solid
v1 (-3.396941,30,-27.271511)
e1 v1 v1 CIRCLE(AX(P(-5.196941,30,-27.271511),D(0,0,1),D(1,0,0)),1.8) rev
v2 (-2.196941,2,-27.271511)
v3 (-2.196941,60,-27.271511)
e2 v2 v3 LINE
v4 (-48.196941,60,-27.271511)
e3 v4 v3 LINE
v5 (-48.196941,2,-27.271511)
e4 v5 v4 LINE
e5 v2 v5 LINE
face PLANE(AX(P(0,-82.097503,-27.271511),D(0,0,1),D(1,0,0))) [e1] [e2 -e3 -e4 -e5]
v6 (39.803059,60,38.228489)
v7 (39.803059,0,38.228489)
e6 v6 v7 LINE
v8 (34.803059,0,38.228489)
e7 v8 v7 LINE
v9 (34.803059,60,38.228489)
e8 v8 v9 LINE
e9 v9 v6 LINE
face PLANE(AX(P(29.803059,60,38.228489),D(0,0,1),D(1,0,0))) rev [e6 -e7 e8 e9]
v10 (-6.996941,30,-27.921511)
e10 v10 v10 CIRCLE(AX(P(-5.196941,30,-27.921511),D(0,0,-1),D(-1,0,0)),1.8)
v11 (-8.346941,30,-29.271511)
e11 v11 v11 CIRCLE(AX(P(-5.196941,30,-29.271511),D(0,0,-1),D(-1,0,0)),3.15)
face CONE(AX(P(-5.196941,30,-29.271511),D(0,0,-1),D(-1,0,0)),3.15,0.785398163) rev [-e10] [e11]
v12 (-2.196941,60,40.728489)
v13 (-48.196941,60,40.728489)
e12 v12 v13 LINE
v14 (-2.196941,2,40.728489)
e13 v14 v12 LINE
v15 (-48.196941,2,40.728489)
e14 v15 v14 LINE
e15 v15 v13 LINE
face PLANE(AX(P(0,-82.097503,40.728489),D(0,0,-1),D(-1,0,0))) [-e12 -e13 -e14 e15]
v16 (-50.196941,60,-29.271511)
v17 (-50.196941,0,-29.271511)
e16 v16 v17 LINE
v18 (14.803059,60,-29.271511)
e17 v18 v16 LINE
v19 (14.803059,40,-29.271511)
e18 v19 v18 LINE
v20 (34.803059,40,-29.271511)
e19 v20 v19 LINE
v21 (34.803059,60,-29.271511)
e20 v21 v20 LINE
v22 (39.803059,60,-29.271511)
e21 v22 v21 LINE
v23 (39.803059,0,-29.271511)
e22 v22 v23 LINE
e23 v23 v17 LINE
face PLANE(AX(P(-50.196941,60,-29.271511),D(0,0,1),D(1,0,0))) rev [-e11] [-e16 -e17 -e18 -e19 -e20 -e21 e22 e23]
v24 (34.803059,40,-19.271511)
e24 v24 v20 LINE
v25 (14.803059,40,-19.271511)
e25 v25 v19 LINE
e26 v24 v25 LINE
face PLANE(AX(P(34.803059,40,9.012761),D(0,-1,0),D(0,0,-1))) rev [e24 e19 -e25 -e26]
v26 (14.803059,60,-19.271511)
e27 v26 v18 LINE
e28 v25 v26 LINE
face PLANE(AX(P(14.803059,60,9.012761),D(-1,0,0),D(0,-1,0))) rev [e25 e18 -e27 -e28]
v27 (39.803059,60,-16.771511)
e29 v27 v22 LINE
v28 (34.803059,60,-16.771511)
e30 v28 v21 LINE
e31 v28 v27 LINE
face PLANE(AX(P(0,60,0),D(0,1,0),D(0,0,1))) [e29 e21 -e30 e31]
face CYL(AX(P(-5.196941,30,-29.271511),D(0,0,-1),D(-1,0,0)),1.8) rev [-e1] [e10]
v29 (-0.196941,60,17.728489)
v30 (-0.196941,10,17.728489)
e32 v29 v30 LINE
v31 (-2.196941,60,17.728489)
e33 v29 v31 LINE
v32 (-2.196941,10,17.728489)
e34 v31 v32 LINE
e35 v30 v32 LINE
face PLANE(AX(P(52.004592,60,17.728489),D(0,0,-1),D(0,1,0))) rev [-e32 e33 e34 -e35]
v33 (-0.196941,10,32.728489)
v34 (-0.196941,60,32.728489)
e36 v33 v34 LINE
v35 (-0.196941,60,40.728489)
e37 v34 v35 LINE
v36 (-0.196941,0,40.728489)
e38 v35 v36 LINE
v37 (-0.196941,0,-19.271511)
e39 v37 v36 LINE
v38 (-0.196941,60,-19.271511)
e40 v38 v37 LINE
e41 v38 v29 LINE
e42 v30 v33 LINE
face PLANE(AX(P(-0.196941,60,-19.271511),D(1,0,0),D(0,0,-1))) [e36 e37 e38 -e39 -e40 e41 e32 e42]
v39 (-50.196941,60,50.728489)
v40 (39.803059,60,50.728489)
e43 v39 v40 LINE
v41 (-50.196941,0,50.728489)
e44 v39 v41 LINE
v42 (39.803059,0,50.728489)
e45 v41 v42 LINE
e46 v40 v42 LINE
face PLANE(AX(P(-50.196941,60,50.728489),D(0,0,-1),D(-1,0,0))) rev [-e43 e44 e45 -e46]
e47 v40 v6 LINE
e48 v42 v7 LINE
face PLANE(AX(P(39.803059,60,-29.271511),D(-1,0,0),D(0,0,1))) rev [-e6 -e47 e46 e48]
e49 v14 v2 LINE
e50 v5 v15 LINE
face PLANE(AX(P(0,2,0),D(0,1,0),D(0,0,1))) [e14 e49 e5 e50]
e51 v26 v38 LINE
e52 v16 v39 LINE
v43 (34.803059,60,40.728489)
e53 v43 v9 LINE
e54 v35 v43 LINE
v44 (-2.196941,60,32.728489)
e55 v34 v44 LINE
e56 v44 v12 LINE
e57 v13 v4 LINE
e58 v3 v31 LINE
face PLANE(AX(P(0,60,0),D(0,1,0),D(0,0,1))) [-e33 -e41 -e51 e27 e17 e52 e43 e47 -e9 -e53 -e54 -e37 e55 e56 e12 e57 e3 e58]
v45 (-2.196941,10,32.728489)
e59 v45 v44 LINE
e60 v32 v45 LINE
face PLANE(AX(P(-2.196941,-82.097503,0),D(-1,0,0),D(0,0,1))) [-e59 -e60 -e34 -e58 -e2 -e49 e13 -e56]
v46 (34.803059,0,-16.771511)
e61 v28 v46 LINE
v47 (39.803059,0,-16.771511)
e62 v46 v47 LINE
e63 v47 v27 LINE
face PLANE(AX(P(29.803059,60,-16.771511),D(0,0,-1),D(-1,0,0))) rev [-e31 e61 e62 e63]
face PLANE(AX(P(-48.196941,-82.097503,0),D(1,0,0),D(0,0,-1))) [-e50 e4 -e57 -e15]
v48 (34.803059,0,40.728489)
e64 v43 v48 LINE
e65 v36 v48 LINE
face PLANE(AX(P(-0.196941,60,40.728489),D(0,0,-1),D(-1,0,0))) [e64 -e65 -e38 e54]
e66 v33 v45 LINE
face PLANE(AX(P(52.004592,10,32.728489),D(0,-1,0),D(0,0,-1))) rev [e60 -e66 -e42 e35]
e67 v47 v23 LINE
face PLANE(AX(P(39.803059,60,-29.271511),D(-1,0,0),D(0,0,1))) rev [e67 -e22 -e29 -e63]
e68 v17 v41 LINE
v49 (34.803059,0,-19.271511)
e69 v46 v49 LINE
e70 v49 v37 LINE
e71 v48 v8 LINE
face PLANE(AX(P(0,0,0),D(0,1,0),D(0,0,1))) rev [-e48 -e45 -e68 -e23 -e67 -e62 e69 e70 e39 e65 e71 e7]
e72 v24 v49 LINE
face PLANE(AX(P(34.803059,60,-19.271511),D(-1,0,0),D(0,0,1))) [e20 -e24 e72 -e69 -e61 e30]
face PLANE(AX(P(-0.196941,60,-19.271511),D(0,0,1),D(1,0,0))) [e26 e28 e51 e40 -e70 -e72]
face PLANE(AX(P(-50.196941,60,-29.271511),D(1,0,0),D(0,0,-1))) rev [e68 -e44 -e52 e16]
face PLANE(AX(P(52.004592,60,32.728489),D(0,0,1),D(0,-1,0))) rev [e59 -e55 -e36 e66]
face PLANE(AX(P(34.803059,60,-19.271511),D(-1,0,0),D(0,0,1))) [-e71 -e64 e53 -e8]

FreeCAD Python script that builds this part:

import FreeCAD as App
import Part
import Sketcher
from FreeCAD import Vector
Q = App.Units.Quantity


def add_polygon(sketch, points):
    """Adds a closed chain of lines whose ends are joined by coincident constraints."""
    first, n = sketch.GeometryCount, len(points)
    for a, b in zip(points, points[1:] + points[:1]):
        sketch.addGeometry(Part.LineSegment(App.Vector(*a, 0), App.Vector(*b, 0)), False)
    for i in range(n):
        sketch.addConstraint(Sketcher.Constraint("Coincident", first + i, 2, first + (i + 1) % n, 1))

doc = App.newDocument("Part")
body = doc.addObject("PartDesign::Body", "Body")

# Sketch on XZ plane
sketch1 = body.newObject("Sketcher::SketchObject", "Sketch")
sketch1.AttachmentSupport = (doc.getObject("XZ_Plane"), [""])
sketch1.MapMode = "FlatFace"
add_polygon(sketch1, [(-50, -29), (-50, 51), (40, 51), (40, -29)])  # lines 0-3
add_polygon(sketch1, [(35, 41), (0, 41), (0, -19), (35, -19)])  # lines 4-7
sketch1.addConstraint(Sketcher.Constraint("Vertical", 0))
sketch1.addConstraint(Sketcher.Constraint("Horizontal", 1))
sketch1.addConstraint(Sketcher.Constraint("Vertical", 2))
sketch1.addConstraint(Sketcher.Constraint("Horizontal", 3))
sketch1.addConstraint(Sketcher.Constraint("Horizontal", 4))
sketch1.addConstraint(Sketcher.Constraint("Vertical", 5))
sketch1.addConstraint(Sketcher.Constraint("Horizontal", 6))
sketch1.addConstraint(Sketcher.Constraint("Vertical", 7))
sketch1.addConstraint(Sketcher.Constraint("DistanceX", 1, 1, 1, 2, Q("90 mm")))
sketch1.addConstraint(Sketcher.Constraint("DistanceX", 4, 2, 4, 1, Q("35 mm")))
sketch1.addConstraint(Sketcher.Constraint("DistanceY", 0, 1, 0, 2, Q("80 mm")))
sketch1.addConstraint(Sketcher.Constraint("DistanceY", 5, 2, 5, 1, Q("60 mm")))
sketch1.addConstraint(Sketcher.Constraint("DistanceX", 4, 2, 1, 2, Q("40 mm")))
sketch1.addConstraint(Sketcher.Constraint("DistanceY", 4, 2, 1, 2, Q("10 mm")))
sketch1.addConstraint(Sketcher.Constraint("DistanceX", 0, 2, -1, 1, Q("50.196941 mm")))
sketch1.addConstraint(Sketcher.Constraint("DistanceY", -1, 1, 0, 2, Q("50.728489 mm")))
pad1 = body.newObject("PartDesign::Pad", "Pad")
pad1.Profile = sketch1
pad1.Length = 60
pad1.Reversed = True

# Sketch on XZ plane
sketch2 = body.newObject("Sketcher::SketchObject", "Sketch001")
sketch2.AttachmentSupport = (doc.getObject("XZ_Plane"), [""])
sketch2.MapMode = "FlatFace"
sketch2.AttachmentOffset = App.Placement(Vector(0, 0, -60), App.Rotation())
add_polygon(sketch2, [(-48, -27), (-48, 41), (-2, 41), (-2, -27)])  # lines 0-3
sketch2.addConstraint(Sketcher.Constraint("Vertical", 0))
sketch2.addConstraint(Sketcher.Constraint("Horizontal", 1))
sketch2.addConstraint(Sketcher.Constraint("Vertical", 2))
sketch2.addConstraint(Sketcher.Constraint("Horizontal", 3))
sketch2.addConstraint(Sketcher.Constraint("DistanceX", 1, 1, 1, 2, Q("46 mm")))
sketch2.addConstraint(Sketcher.Constraint("DistanceY", 0, 1, 0, 2, Q("68 mm")))
sketch2.addConstraint(Sketcher.Constraint("DistanceX", 0, 2, -1, 1, Q("48.196941 mm")))
sketch2.addConstraint(Sketcher.Constraint("DistanceY", -1, 1, 0, 2, Q("40.728489 mm")))
pocket1 = body.newObject("PartDesign::Pocket", "Pocket")
pocket1.Profile = sketch2
pocket1.Length = 58
pocket1.Reversed = True

# Sketch on YZ plane
sketch3 = body.newObject("Sketcher::SketchObject", "Sketch002")
sketch3.AttachmentSupport = (doc.getObject("YZ_Plane"), [""])
sketch3.MapMode = "FlatFace"
sketch3.AttachmentOffset = App.Placement(Vector(0, 0, -2.196941), App.Rotation())
add_polygon(sketch3, [(60, 18), (10, 18), (10, 33), (60, 33)])  # lines 0-3
sketch3.addConstraint(Sketcher.Constraint("Horizontal", 0))
sketch3.addConstraint(Sketcher.Constraint("Vertical", 1))
sketch3.addConstraint(Sketcher.Constraint("Horizontal", 2))
sketch3.addConstraint(Sketcher.Constraint("Vertical", 3))
sketch3.addConstraint(Sketcher.Constraint("DistanceX", 0, 2, 0, 1, Q("50 mm")))
sketch3.addConstraint(Sketcher.Constraint("DistanceY", 1, 1, 1, 2, Q("15 mm")))
sketch3.addConstraint(Sketcher.Constraint("DistanceX", -1, 1, 0, 2, Q("10 mm")))
sketch3.addConstraint(Sketcher.Constraint("DistanceY", -1, 1, 0, 2, Q("17.728489 mm")))
pocket2 = body.newObject("PartDesign::Pocket", "Pocket001")
pocket2.Profile = sketch3
pocket2.Length = 2
pocket2.Reversed = True

# Sketch on XY plane
sketch4 = body.newObject("Sketcher::SketchObject", "Sketch003")
sketch4.AttachmentSupport = (doc.getObject("XY_Plane"), [""])
sketch4.MapMode = "FlatFace"
sketch4.AttachmentOffset = App.Placement(Vector(0, 0, -29.271511), App.Rotation())
add_polygon(sketch4, [(35, 60), (35, 40), (15, 40), (15, 60)])  # lines 0-3
sketch4.addConstraint(Sketcher.Constraint("Vertical", 0))
sketch4.addConstraint(Sketcher.Constraint("Horizontal", 1))
sketch4.addConstraint(Sketcher.Constraint("Vertical", 2))
sketch4.addConstraint(Sketcher.Constraint("Horizontal", 3))
sketch4.addConstraint(Sketcher.Constraint("Equal", 3, 0))
sketch4.addConstraint(Sketcher.Constraint("DistanceX", 1, 2, 1, 1, Q("20 mm")))
sketch4.addConstraint(Sketcher.Constraint("DistanceY", -1, 1, 0, 2, Q("40 mm")))
sketch4.addConstraint(Sketcher.Constraint("DistanceX", -1, 1, 0, 2, Q("34.803059 mm")))
pocket3 = body.newObject("PartDesign::Pocket", "Pocket002")
pocket3.Profile = sketch4
pocket3.Length = 10
pocket3.Reversed = True

# Sketch on YZ plane
sketch5 = body.newObject("Sketcher::SketchObject", "Sketch004")
sketch5.AttachmentSupport = (doc.getObject("YZ_Plane"), [""])
sketch5.MapMode = "FlatFace"
sketch5.AttachmentOffset = App.Placement(Vector(0, 0, 39.803059), App.Rotation())
add_polygon(sketch5, [(60, 38), (0, 38), (0, -17), (60, -17)])  # lines 0-3
sketch5.addConstraint(Sketcher.Constraint("Horizontal", 0))
sketch5.addConstraint(Sketcher.Constraint("Vertical", 1))
sketch5.addConstraint(Sketcher.Constraint("Horizontal", 2))
sketch5.addConstraint(Sketcher.Constraint("Vertical", 3))
sketch5.addConstraint(Sketcher.Constraint("PointOnObject", 0, 2, -2))
sketch5.addConstraint(Sketcher.Constraint("DistanceX", 0, 2, 0, 1, Q("60 mm")))
sketch5.addConstraint(Sketcher.Constraint("DistanceY", 1, 2, 1, 1, Q("55 mm")))
sketch5.addConstraint(Sketcher.Constraint("DistanceY", -1, 1, 0, 2, Q("38.228489 mm")))
pocket4 = body.newObject("PartDesign::Pocket", "Pocket003")
pocket4.Profile = sketch5
pocket4.Length = 10

# Sketch on YZ plane
sketch6 = body.newObject("Sketcher::SketchObject", "Sketch005")
sketch6.AttachmentSupport = (doc.getObject("YZ_Plane"), [""])
sketch6.MapMode = "FlatFace"
sketch6.AttachmentOffset = App.Placement(Vector(0, 0, -5.196941), App.Rotation())
add_polygon(sketch6, [(30, -26.2), (30, -29.3), (33.1, -29.3), (31.8, -27.9), (31.8, -27.3)])  # lines 0-4
sketch6.addGeometry(Part.LineSegment(Vector(30, -29.3, 0), Vector(30, -26.2, 0)), True)  # axis
sketch6.addConstraint(Sketcher.Constraint("Vertical", 0))
sketch6.addConstraint(Sketcher.Constraint("Horizontal", 1))
sketch6.addConstraint(Sketcher.Constraint("Vertical", 3))
sketch6.addConstraint(Sketcher.Constraint("Vertical", 5))
sketch6.addConstraint(Sketcher.Constraint("Coincident", 5, 1, 0, 2))
sketch6.addConstraint(Sketcher.Constraint("Equal", 0, 5))
sketch6.addConstraint(Sketcher.Constraint("Angle", 2, Q("135 deg")))
sketch6.addConstraint(Sketcher.Constraint("Angle", 4, Q("149 deg")))
sketch6.addConstraint(Sketcher.Constraint("DistanceX", -1, 1, 0, 2, Q("30 mm")))
sketch6.addConstraint(Sketcher.Constraint("DistanceY", 1, 2, 3, 2, Q("2 mm")))
sketch6.addConstraint(Sketcher.Constraint("DistanceX", 1, 1, 1, 2, Q("3.15 mm")))
sketch6.addConstraint(Sketcher.Constraint("DistanceY", 3, 1, 3, 2, Q("0.65 mm")))
sketch6.addConstraint(Sketcher.Constraint("DistanceY", 0, 2, -1, 1, Q("29.271511 mm")))
groove = body.newObject("PartDesign::Groove", "Groove")
groove.Profile = sketch6
groove.ReferenceAxis = (sketch6, ["Axis0"])
groove.Angle = 360

doc.recompute()
